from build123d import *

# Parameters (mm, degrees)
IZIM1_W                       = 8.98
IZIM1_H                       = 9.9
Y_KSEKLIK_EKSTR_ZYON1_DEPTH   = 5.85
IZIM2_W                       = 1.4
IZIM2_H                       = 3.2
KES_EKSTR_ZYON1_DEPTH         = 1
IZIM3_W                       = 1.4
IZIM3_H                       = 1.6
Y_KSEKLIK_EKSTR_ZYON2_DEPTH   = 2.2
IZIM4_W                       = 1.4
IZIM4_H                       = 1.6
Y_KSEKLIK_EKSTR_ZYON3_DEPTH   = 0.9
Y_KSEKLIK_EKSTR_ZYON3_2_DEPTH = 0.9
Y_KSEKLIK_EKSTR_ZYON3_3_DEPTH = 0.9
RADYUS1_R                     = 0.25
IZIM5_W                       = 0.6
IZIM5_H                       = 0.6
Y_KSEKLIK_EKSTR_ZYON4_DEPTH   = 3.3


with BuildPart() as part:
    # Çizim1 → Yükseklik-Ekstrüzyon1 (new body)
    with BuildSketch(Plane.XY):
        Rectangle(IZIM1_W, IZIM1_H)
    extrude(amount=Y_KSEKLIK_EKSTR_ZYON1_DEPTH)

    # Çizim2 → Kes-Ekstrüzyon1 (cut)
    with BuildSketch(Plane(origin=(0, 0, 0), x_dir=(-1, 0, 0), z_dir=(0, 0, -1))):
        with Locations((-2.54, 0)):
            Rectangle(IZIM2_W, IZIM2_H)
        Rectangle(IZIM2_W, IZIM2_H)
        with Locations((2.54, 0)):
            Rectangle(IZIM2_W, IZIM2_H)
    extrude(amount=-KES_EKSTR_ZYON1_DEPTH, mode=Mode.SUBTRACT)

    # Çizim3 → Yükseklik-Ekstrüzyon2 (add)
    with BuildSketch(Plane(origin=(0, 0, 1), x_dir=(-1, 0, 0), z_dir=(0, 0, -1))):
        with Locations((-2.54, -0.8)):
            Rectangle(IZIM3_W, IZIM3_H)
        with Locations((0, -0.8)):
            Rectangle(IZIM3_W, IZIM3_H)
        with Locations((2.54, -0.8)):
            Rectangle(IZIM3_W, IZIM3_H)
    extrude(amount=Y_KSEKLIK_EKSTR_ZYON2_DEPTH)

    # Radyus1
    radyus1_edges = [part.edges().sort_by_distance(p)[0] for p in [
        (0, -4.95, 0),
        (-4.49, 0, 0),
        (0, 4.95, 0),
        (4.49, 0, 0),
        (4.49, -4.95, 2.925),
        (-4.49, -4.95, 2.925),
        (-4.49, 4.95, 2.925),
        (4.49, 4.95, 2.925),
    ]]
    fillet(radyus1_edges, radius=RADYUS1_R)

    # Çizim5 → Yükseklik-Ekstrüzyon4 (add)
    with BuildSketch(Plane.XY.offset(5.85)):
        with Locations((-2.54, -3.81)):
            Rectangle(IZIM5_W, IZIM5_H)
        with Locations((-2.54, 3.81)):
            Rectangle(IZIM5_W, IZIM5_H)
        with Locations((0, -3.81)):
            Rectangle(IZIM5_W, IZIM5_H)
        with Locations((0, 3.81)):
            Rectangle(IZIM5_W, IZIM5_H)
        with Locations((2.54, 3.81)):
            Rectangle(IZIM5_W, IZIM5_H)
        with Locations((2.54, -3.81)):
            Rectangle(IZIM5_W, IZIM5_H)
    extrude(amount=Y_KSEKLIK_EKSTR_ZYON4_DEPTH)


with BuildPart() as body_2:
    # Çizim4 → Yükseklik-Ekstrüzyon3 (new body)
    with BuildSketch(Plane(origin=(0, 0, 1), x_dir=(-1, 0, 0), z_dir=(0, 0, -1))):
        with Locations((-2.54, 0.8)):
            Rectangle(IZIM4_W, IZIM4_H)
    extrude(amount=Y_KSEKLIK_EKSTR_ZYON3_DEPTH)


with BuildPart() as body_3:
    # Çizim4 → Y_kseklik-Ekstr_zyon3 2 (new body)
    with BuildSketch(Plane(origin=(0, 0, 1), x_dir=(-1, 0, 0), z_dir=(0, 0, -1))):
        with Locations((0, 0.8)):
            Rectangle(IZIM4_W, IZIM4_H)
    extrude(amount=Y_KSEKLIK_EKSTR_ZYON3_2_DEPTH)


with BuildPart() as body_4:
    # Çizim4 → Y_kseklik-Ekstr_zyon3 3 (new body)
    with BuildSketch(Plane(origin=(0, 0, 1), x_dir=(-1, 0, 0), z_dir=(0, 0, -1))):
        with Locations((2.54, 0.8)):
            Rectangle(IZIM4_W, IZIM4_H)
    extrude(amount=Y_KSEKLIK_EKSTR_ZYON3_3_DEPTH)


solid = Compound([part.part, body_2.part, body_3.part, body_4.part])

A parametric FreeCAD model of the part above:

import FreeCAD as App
import Part
import Sketcher

V = App.Vector


def edges_at(feature, points):
    """Names of the edges that pass closest to the given points."""
    edges = feature.Shape.Edges
    near = lambda p: min(range(len(edges)), key=lambda i: edges[i].distToShape(Part.Vertex(*p))[0])
    return sorted({f"Edge{near(p) + 1}" for p in points})


def add_polygon(sketch, points):
    """Adds a closed chain of lines whose ends are joined by coincident constraints."""
    first, n = sketch.GeometryCount, len(points)
    for a, b in zip(points, points[1:] + points[:1]):
        sketch.addGeometry(Part.LineSegment(App.Vector(*a, 0), App.Vector(*b, 0)), False)
    for i in range(n):
        sketch.addConstraint(Sketcher.Constraint("Coincident", first + i, 2, first + (i + 1) % n, 1))

doc = App.newDocument("Part")
body = doc.addObject("PartDesign::Body", "Body")

# Sketch on XY plane
sketch1 = body.newObject("Sketcher::SketchObject", "Sketch")
sketch1.AttachmentSupport = (doc.getObject("XY_Plane"), [""])
sketch1.MapMode = "FlatFace"
add_polygon(sketch1, [(-4, 5), (-4, -5), (4, -5), (4, 5)])  # lines 0-3
sketch1.addConstraint([
    Sketcher.Constraint("Vertical", 0),
    Sketcher.Constraint("Horizontal", 1),
    Sketcher.Constraint("Vertical", 2),
    Sketcher.Constraint("Horizontal", 3),
    Sketcher.Constraint("Symmetric", 0, 2, 2, 2, -1, 1),
    Sketcher.Constraint("DistanceY", 0, 2, 0, 1, 9.9),
    Sketcher.Constraint("DistanceX", 1, 1, 1, 2, 8.98),
])
pad1 = body.newObject("PartDesign::Pad", "Pad")
pad1.Profile = sketch1
pad1.Length = 5.85

# Sketch on XY plane
sketch2 = body.newObject("Sketcher::SketchObject", "Sketch001")
sketch2.AttachmentSupport = (doc.getObject("XY_Plane"), [""])
sketch2.MapMode = "FlatFace"
add_polygon(sketch2, [(3.2, 1.6), (3.2, -1.6), (1.8, -1.6), (1.8, 1.6)])  # lines 0-3
add_polygon(sketch2, [(0.7, 1.6), (0.7, -1.6), (-0.7, -1.6), (-0.7, 1.6)])  # lines 4-7
add_polygon(sketch2, [(-1.8, 1.6), (-1.8, -1.6), (-3.2, -1.6), (-3.2, 1.6)])  # lines 8-11
sketch2.addConstraint([
    Sketcher.Constraint("Vertical", 0),
    Sketcher.Constraint("Horizontal", 1),
    Sketcher.Constraint("Vertical", 2),
    Sketcher.Constraint("Horizontal", 3),
    Sketcher.Constraint("Vertical", 4),
    Sketcher.Constraint("Horizontal", 5),
    Sketcher.Constraint("Vertical", 6),
    Sketcher.Constraint("Horizontal", 7),
    Sketcher.Constraint("Vertical", 8),
    Sketcher.Constraint("Horizontal", 9),
    Sketcher.Constraint("Vertical", 10),
    Sketcher.Constraint("Horizontal", 11),
    Sketcher.Constraint("Symmetric", 4, 2, 6, 2, -1, 1),
    Sketcher.Constraint("Symmetric", 2, 2, 8, 2, -1, 1),
    Sketcher.Constraint("Symmetric", 0, 2, 10, 2, -1, 1),
    Sketcher.Constraint("Horizontal", 1, 2, 4, 2),
    Sketcher.Constraint("Horizontal", 3, 2, 6, 2),
    Sketcher.Constraint("Equal", 3, 5),
    Sketcher.Constraint("DistanceX", 1, 2, 1, 1, 1.4),
    Sketcher.Constraint("DistanceY", 0, 2, 0, 1, 3.2),
    Sketcher.Constraint("DistanceX", -1, 1, 0, 2, 3.24),
])
pocket1 = body.newObject("PartDesign::Pocket", "Pocket")
pocket1.Profile = sketch2
pocket1.Length = 1
pocket1.Reversed = True

# Sketch on XY plane
sketch3 = body.newObject("Sketcher::SketchObject", "Sketch002")
sketch3.AttachmentSupport = (doc.getObject("XY_Plane"), [""])
sketch3.MapMode = "FlatFace"
sketch3.AttachmentOffset = App.Placement(V(0, 0, 1), App.Rotation())
add_polygon(sketch3, [(3.2, 0), (3.2, -1.6), (1.8, -1.6), (1.8, 0)])  # lines 0-3
add_polygon(sketch3, [(0.7, 0), (0.7, -1.6), (-0.7, -1.6), (-0.7, 0)])  # lines 4-7
add_polygon(sketch3, [(-1.8, 0), (-1.8, -1.6), (-3.2, -1.6), (-3.2, 0)])  # lines 8-11
sketch3.addConstraint([
    Sketcher.Constraint("Vertical", 0),
    Sketcher.Constraint("Horizontal", 1),
    Sketcher.Constraint("Vertical", 2),
    Sketcher.Constraint("Horizontal", 3),
    Sketcher.Constraint("Vertical", 4),
    Sketcher.Constraint("Horizontal", 5),
    Sketcher.Constraint("Vertical", 6),
    Sketcher.Constraint("Horizontal", 7),
    Sketcher.Constraint("Vertical", 8),
    Sketcher.Constraint("Horizontal", 9),
    Sketcher.Constraint("Vertical", 10),
    Sketcher.Constraint("Horizontal", 11),
    Sketcher.Constraint("Symmetric", 6, 2, 7, 2, -1, 1),
    Sketcher.Constraint("Symmetric", 3, 2, 10, 2, -1, 1),
    Sketcher.Constraint("Symmetric", 1, 2, 8, 2, -2),
    Sketcher.Constraint("PointOnObject", 2, 2, -1),
    Sketcher.Constraint("Horizontal", 1, 2, 4, 2),
    Sketcher.Constraint("Equal", 3, 5),
    Sketcher.Constraint("DistanceX", 1, 2, 1, 1, 1.4),
    Sketcher.Constraint("DistanceY", 0, 2, 0, 1, 1.6),
    Sketcher.Constraint("DistanceX", -1, 1, 0, 2, 3.24),
])
pad2 = body.newObject("PartDesign::Pad", "Pad001")
pad2.Profile = sketch3
pad2.Length = 2.2
pad2.Reversed = True
doc.recompute()

fillet = body.newObject("PartDesign::Fillet", "Fillet")
fillet.Base = (pad2, edges_at(pad2, [
    (0, -4.95, 0),
    (-4.49, 0, 0),
    (0, 4.95, 0),
    (4.49, 0, 0),
    (4.49, -4.95, 2.925),
    (-4.49, -4.95, 2.925),
    (-4.49, 4.95, 2.925),
    (4.49, 4.95, 2.925),
]))
fillet.Radius = 0.25

# Sketch on XY plane
sketch4 = body.newObject("Sketcher::SketchObject", "Sketch003")
sketch4.AttachmentSupport = (doc.getObject("XY_Plane"), [""])
sketch4.MapMode = "FlatFace"
sketch4.AttachmentOffset = App.Placement(V(0, 0, 5.85), App.Rotation())
add_polygon(sketch4, [(-2.8, -3.5), (-2.8, -4.1), (-2.2, -4.1), (-2.2, -3.5)])  # lines 0-3
add_polygon(sketch4, [(-2.8, 4.1), (-2.8, 3.5), (-2.2, 3.5), (-2.2, 4.1)])  # lines 4-7
add_polygon(sketch4, [(-0.3, -3.5), (-0.3, -4.1), (0.3, -4.1), (0.3, -3.5)])  # lines 8-11
add_polygon(sketch4, [(-0.3, 4.1), (-0.3, 3.5), (0.3, 3.5), (0.3, 4.1)])  # lines 12-15
add_polygon(sketch4, [(2.2, 4.1), (2.2, 3.5), (2.8, 3.5), (2.8, 4.1)])  # lines 16-19
add_polygon(sketch4, [(2.2, -3.5), (2.2, -4.1), (2.8, -4.1), (2.8, -3.5)])  # lines 20-23
sketch4.addConstraint([
    Sketcher.Constraint("Vertical", 0),
    Sketcher.Constraint("Horizontal", 1),
    Sketcher.Constraint("Vertical", 2),
    Sketcher.Constraint("Horizontal", 3),
    Sketcher.Constraint("Vertical", 4),
    Sketcher.Constraint("Horizontal", 5),
    Sketcher.Constraint("Vertical", 6),
    Sketcher.Constraint("Horizontal", 7),
    Sketcher.Constraint("Vertical", 8),
    Sketcher.Constraint("Horizontal", 9),
    Sketcher.Constraint("Vertical", 10),
    Sketcher.Constraint("Horizontal", 11),
    Sketcher.Constraint("Vertical", 12),
    Sketcher.Constraint("Horizontal", 13),
    Sketcher.Constraint("Vertical", 14),
    Sketcher.Constraint("Horizontal", 15),
    Sketcher.Constraint("Vertical", 16),
    Sketcher.Constraint("Horizontal", 17),
    Sketcher.Constraint("Vertical", 18),
    Sketcher.Constraint("Horizontal", 19),
    Sketcher.Constraint("Vertical", 20),
    Sketcher.Constraint("Horizontal", 21),
    Sketcher.Constraint("Vertical", 22),
    Sketcher.Constraint("Horizontal", 23),
    Sketcher.Constraint("Symmetric", 10, 2, 12, 2, -1, 1),
    Sketcher.Constraint("Symmetric", 8, 2, 14, 2, -1, 1),
    Sketcher.Constraint("Symmetric", 2, 2, 16, 2, -1, 1),
    Sketcher.Constraint("Symmetric", 0, 2, 18, 2, -1, 1),
    Sketcher.Constraint("Symmetric", 6, 2, 20, 2, -1, 1),
    Sketcher.Constraint("Symmetric", 4, 2, 22, 2, -1, 1),
    Sketcher.Constraint("Symmetric", 5, 2, 16, 2, -2),
    Sketcher.Constraint("Symmetric", 7, 2, 18, 2, -2),
    Sketcher.Constraint("Horizontal", 1, 2, 8, 2),
    Sketcher.Constraint("Horizontal", 3, 2, 10, 2),
    Sketcher.Constraint("Vertical", 11, 2, 12, 2),
    Sketcher.Constraint("Equal", 7, 9),
    Sketcher.Constraint("Equal", 23, 0),
    Sketcher.Constraint("DistanceX", 1, 1, 1, 2, 0.6),
    Sketcher.Constraint("DistanceX", 0, 2, -1, 1, 2.84),
    Sketcher.Constraint("DistanceY", 0, 2, -1, 1, 4.11),
])
pad3 = body.newObject("PartDesign::Pad", "Pad002")
pad3.Profile = sketch4
pad3.Length = 3.3
body2 = doc.addObject("PartDesign::Body", "Body001")

# Sketch on XY plane
sketch5 = body2.newObject("Sketcher::SketchObject", "Sketch004")
sketch5.AttachmentSupport = (doc.getObject("XY_Plane001"), [""])
sketch5.MapMode = "FlatFace"
sketch5.AttachmentOffset = App.Placement(V(0, 0, 1), App.Rotation())
add_polygon(sketch5, [(3.2, 1.6), (3.2, 0), (1.8, 0), (1.8, 1.6)])  # lines 0-3
sketch5.addConstraint([
    Sketcher.Constraint("Vertical", 0),
    Sketcher.Constraint("Horizontal", 1),
    Sketcher.Constraint("Vertical", 2),
    Sketcher.Constraint("Horizontal", 3),
    Sketcher.Constraint("PointOnObject", 0, 2, -1),
    Sketcher.Constraint("DistanceX", 1, 2, 1, 1, 1.4),
    Sketcher.Constraint("DistanceY", 0, 2, 0, 1, 1.6),
    Sketcher.Constraint("DistanceX", -1, 1, 0, 2, 3.24),
])
pad4 = body2.newObject("PartDesign::Pad", "Pad003")
pad4.Profile = sketch5
pad4.Length = 0.9
pad4.Reversed = True
body3 = doc.addObject("PartDesign::Body", "Body002")

# Sketch on XY plane
sketch6 = body3.newObject("Sketcher::SketchObject", "Sketch005")
sketch6.AttachmentSupport = (doc.getObject("XY_Plane002"), [""])
sketch6.MapMode = "FlatFace"
sketch6.AttachmentOffset = App.Placement(V(0, 0, 1), App.Rotation())
add_polygon(sketch6, [(0.7, 1.6), (0.7, 0), (-0.7, 0), (-0.7, 1.6)])  # lines 0-3
sketch6.addConstraint([
    Sketcher.Constraint("Vertical", 0),
    Sketcher.Constraint("Horizontal", 1),
    Sketcher.Constraint("Vertical", 2),
    Sketcher.Constraint("Horizontal", 3),
    Sketcher.Constraint("Symmetric", 0, 2, 1, 2, -1, 1),
    Sketcher.Constraint("DistanceX", 1, 2, 1, 1, 1.4),
    Sketcher.Constraint("DistanceY", 0, 2, 0, 1, 1.6),
])
pad5 = body3.newObject("PartDesign::Pad", "Pad004")
pad5.Profile = sketch6
pad5.Length = 0.9
pad5.Reversed = True
body4 = doc.addObject("PartDesign::Body", "Body003")

# Sketch on XY plane
sketch7 = body4.newObject("Sketcher::SketchObject", "Sketch006")
sketch7.AttachmentSupport = (doc.getObject("XY_Plane003"), [""])
sketch7.MapMode = "FlatFace"
sketch7.AttachmentOffset = App.Placement(V(0, 0, 1), App.Rotation())
add_polygon(sketch7, [(-1.8, 1.6), (-1.8, 0), (-3.2, 0), (-3.2, 1.6)])  # lines 0-3
sketch7.addConstraint([
    Sketcher.Constraint("Vertical", 0),
    Sketcher.Constraint("Horizontal", 1),
    Sketcher.Constraint("Vertical", 2),
    Sketcher.Constraint("Horizontal", 3),
    Sketcher.Constraint("PointOnObject", 0, 2, -1),
    Sketcher.Constraint("DistanceX", 1, 2, 1, 1, 1.4),
    Sketcher.Constraint("DistanceY", 0, 2, 0, 1, 1.6),
    Sketcher.Constraint("DistanceX", 0, 2, -1, 1, 1.84),
])
pad6 = body4.newObject("PartDesign::Pad", "Pad005")
pad6.Profile = sketch7
pad6.Length = 0.9
pad6.Reversed = True

doc.recompute()
